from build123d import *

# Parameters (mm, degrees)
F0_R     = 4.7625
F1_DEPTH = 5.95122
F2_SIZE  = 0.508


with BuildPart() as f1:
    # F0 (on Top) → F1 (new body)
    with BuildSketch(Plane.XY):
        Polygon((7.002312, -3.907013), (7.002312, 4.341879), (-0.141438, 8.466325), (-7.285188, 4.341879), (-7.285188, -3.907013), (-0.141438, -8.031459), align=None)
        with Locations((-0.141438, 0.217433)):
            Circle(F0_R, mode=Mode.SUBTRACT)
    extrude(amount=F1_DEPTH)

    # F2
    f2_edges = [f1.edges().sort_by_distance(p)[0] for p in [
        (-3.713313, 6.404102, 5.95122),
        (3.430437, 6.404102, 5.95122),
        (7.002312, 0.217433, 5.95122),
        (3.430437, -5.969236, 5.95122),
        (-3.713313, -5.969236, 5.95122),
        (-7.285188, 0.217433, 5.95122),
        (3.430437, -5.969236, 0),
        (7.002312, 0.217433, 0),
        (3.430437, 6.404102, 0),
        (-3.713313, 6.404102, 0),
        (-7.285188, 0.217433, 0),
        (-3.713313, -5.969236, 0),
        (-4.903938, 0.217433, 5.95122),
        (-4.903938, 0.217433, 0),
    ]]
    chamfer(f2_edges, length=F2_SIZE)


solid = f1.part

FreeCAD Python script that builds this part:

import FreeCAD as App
import Part
import Sketcher

V = App.Vector
Q = App.Units.Quantity


def edges_at(feature, points):
    """Names of the edges that pass closest to the given points."""
    edges = feature.Shape.Edges
    near = lambda p: min(range(len(edges)), key=lambda i: edges[i].distToShape(Part.Vertex(*p))[0])
    return sorted({f"Edge{near(p) + 1}" for p in points})

doc = App.newDocument("Part")
body = doc.addObject("PartDesign::Body", "Body")

sketch1 = body.newObject("Sketcher::SketchObject", "Sketch")
sketch1.AttachmentSupport = (doc.getObject("XY_Plane"), [""])
sketch1.MapMode = "FlatFace"
sketch1.addGeometry([
    Part.LineSegment(V(7, -3.9, 0), V(7, 4.3, 0)),
    Part.LineSegment(V(7, 4.3, 0), V(-0.1, 8.5, 0)),
    Part.LineSegment(V(-0.1, 8.5, 0), V(-7.3, 4.3, 0)),
    Part.LineSegment(V(-7.3, 4.3, 0), V(-7.3, -3.9, 0)),
    Part.LineSegment(V(-7.3, -3.9, 0), V(-0.1, -8, 0)),
    Part.LineSegment(V(-0.1, -8, 0), V(7, -3.9, 0)),
    Part.Circle(V(-0.1, 0.2, 0), V(0, 0, 1), 4.8),
], False)
sketch1.addConstraint([
    Sketcher.Constraint("Coincident", 0, 2, 1, 1),
    Sketcher.Constraint("Coincident", 1, 2, 2, 1),
    Sketcher.Constraint("Coincident", 2, 2, 3, 1),
    Sketcher.Constraint("Coincident", 3, 2, 4, 1),
    Sketcher.Constraint("Coincident", 4, 2, 5, 1),
    Sketcher.Constraint("Coincident", 5, 2, 0, 1),
    Sketcher.Constraint("Vertical", 0),
    Sketcher.Constraint("Vertical", 3),
    Sketcher.Constraint("Parallel", 1, 4),
    Sketcher.Constraint("Parallel", 2, 5),
    Sketcher.Constraint("Horizontal", 0, 2, 2, 2),
    Sketcher.Constraint("Horizontal", 3, 2, 5, 2),
    Sketcher.Constraint("Vertical", 6, 3, 1, 2),
    Sketcher.Constraint("Vertical", 1, 2, 4, 2),
    Sketcher.Constraint("Diameter", 6, Q("0.375 in")),
    Sketcher.Constraint("Angle", 1, Q("150 deg")),
    Sketcher.Constraint("DistanceX", 6, 3, 0, 2, Q("0.28125 in")),
    Sketcher.Constraint("DistanceY", 0, 1, 0, 2, Q("8.248892 mm")),
    Sketcher.Constraint("DistanceY", -1, 1, 0, 2, Q("4.341879 mm")),
    Sketcher.Constraint("DistanceX", 6, 3, -1, 1, Q("0.141438 mm")),
    Sketcher.Constraint("DistanceY", -1, 1, 6, 3, Q("0.217433 mm")),
])
pad1 = body.newObject("PartDesign::Pad", "Pad")
pad1.Profile = sketch1
pad1.Length = Q("0.2343 in")
doc.recompute()

chamfer = body.newObject("PartDesign::Chamfer", "Chamfer")
chamfer.Base = (pad1, edges_at(pad1, [
    (-3.713, 6.404, 5.951),
    (3.43, 6.404, 5.951),
    (7.002, 0.217, 5.951),
    (3.43, -5.969, 5.951),
    (-3.713, -5.969, 5.951),
    (-7.285, 0.217, 5.951),
    (3.43, -5.969, 0),
    (7.002, 0.217, 0),
    (3.43, 6.404, 0),
    (-3.713, 6.404, 0),
    (-7.285, 0.217, 0),
    (-3.713, -5.969, 0),
    (-4.904, 0.217, 5.951),
    (-4.904, 0.217, 0),
]))
chamfer.Size = Q("0.02 in")

doc.recompute()
